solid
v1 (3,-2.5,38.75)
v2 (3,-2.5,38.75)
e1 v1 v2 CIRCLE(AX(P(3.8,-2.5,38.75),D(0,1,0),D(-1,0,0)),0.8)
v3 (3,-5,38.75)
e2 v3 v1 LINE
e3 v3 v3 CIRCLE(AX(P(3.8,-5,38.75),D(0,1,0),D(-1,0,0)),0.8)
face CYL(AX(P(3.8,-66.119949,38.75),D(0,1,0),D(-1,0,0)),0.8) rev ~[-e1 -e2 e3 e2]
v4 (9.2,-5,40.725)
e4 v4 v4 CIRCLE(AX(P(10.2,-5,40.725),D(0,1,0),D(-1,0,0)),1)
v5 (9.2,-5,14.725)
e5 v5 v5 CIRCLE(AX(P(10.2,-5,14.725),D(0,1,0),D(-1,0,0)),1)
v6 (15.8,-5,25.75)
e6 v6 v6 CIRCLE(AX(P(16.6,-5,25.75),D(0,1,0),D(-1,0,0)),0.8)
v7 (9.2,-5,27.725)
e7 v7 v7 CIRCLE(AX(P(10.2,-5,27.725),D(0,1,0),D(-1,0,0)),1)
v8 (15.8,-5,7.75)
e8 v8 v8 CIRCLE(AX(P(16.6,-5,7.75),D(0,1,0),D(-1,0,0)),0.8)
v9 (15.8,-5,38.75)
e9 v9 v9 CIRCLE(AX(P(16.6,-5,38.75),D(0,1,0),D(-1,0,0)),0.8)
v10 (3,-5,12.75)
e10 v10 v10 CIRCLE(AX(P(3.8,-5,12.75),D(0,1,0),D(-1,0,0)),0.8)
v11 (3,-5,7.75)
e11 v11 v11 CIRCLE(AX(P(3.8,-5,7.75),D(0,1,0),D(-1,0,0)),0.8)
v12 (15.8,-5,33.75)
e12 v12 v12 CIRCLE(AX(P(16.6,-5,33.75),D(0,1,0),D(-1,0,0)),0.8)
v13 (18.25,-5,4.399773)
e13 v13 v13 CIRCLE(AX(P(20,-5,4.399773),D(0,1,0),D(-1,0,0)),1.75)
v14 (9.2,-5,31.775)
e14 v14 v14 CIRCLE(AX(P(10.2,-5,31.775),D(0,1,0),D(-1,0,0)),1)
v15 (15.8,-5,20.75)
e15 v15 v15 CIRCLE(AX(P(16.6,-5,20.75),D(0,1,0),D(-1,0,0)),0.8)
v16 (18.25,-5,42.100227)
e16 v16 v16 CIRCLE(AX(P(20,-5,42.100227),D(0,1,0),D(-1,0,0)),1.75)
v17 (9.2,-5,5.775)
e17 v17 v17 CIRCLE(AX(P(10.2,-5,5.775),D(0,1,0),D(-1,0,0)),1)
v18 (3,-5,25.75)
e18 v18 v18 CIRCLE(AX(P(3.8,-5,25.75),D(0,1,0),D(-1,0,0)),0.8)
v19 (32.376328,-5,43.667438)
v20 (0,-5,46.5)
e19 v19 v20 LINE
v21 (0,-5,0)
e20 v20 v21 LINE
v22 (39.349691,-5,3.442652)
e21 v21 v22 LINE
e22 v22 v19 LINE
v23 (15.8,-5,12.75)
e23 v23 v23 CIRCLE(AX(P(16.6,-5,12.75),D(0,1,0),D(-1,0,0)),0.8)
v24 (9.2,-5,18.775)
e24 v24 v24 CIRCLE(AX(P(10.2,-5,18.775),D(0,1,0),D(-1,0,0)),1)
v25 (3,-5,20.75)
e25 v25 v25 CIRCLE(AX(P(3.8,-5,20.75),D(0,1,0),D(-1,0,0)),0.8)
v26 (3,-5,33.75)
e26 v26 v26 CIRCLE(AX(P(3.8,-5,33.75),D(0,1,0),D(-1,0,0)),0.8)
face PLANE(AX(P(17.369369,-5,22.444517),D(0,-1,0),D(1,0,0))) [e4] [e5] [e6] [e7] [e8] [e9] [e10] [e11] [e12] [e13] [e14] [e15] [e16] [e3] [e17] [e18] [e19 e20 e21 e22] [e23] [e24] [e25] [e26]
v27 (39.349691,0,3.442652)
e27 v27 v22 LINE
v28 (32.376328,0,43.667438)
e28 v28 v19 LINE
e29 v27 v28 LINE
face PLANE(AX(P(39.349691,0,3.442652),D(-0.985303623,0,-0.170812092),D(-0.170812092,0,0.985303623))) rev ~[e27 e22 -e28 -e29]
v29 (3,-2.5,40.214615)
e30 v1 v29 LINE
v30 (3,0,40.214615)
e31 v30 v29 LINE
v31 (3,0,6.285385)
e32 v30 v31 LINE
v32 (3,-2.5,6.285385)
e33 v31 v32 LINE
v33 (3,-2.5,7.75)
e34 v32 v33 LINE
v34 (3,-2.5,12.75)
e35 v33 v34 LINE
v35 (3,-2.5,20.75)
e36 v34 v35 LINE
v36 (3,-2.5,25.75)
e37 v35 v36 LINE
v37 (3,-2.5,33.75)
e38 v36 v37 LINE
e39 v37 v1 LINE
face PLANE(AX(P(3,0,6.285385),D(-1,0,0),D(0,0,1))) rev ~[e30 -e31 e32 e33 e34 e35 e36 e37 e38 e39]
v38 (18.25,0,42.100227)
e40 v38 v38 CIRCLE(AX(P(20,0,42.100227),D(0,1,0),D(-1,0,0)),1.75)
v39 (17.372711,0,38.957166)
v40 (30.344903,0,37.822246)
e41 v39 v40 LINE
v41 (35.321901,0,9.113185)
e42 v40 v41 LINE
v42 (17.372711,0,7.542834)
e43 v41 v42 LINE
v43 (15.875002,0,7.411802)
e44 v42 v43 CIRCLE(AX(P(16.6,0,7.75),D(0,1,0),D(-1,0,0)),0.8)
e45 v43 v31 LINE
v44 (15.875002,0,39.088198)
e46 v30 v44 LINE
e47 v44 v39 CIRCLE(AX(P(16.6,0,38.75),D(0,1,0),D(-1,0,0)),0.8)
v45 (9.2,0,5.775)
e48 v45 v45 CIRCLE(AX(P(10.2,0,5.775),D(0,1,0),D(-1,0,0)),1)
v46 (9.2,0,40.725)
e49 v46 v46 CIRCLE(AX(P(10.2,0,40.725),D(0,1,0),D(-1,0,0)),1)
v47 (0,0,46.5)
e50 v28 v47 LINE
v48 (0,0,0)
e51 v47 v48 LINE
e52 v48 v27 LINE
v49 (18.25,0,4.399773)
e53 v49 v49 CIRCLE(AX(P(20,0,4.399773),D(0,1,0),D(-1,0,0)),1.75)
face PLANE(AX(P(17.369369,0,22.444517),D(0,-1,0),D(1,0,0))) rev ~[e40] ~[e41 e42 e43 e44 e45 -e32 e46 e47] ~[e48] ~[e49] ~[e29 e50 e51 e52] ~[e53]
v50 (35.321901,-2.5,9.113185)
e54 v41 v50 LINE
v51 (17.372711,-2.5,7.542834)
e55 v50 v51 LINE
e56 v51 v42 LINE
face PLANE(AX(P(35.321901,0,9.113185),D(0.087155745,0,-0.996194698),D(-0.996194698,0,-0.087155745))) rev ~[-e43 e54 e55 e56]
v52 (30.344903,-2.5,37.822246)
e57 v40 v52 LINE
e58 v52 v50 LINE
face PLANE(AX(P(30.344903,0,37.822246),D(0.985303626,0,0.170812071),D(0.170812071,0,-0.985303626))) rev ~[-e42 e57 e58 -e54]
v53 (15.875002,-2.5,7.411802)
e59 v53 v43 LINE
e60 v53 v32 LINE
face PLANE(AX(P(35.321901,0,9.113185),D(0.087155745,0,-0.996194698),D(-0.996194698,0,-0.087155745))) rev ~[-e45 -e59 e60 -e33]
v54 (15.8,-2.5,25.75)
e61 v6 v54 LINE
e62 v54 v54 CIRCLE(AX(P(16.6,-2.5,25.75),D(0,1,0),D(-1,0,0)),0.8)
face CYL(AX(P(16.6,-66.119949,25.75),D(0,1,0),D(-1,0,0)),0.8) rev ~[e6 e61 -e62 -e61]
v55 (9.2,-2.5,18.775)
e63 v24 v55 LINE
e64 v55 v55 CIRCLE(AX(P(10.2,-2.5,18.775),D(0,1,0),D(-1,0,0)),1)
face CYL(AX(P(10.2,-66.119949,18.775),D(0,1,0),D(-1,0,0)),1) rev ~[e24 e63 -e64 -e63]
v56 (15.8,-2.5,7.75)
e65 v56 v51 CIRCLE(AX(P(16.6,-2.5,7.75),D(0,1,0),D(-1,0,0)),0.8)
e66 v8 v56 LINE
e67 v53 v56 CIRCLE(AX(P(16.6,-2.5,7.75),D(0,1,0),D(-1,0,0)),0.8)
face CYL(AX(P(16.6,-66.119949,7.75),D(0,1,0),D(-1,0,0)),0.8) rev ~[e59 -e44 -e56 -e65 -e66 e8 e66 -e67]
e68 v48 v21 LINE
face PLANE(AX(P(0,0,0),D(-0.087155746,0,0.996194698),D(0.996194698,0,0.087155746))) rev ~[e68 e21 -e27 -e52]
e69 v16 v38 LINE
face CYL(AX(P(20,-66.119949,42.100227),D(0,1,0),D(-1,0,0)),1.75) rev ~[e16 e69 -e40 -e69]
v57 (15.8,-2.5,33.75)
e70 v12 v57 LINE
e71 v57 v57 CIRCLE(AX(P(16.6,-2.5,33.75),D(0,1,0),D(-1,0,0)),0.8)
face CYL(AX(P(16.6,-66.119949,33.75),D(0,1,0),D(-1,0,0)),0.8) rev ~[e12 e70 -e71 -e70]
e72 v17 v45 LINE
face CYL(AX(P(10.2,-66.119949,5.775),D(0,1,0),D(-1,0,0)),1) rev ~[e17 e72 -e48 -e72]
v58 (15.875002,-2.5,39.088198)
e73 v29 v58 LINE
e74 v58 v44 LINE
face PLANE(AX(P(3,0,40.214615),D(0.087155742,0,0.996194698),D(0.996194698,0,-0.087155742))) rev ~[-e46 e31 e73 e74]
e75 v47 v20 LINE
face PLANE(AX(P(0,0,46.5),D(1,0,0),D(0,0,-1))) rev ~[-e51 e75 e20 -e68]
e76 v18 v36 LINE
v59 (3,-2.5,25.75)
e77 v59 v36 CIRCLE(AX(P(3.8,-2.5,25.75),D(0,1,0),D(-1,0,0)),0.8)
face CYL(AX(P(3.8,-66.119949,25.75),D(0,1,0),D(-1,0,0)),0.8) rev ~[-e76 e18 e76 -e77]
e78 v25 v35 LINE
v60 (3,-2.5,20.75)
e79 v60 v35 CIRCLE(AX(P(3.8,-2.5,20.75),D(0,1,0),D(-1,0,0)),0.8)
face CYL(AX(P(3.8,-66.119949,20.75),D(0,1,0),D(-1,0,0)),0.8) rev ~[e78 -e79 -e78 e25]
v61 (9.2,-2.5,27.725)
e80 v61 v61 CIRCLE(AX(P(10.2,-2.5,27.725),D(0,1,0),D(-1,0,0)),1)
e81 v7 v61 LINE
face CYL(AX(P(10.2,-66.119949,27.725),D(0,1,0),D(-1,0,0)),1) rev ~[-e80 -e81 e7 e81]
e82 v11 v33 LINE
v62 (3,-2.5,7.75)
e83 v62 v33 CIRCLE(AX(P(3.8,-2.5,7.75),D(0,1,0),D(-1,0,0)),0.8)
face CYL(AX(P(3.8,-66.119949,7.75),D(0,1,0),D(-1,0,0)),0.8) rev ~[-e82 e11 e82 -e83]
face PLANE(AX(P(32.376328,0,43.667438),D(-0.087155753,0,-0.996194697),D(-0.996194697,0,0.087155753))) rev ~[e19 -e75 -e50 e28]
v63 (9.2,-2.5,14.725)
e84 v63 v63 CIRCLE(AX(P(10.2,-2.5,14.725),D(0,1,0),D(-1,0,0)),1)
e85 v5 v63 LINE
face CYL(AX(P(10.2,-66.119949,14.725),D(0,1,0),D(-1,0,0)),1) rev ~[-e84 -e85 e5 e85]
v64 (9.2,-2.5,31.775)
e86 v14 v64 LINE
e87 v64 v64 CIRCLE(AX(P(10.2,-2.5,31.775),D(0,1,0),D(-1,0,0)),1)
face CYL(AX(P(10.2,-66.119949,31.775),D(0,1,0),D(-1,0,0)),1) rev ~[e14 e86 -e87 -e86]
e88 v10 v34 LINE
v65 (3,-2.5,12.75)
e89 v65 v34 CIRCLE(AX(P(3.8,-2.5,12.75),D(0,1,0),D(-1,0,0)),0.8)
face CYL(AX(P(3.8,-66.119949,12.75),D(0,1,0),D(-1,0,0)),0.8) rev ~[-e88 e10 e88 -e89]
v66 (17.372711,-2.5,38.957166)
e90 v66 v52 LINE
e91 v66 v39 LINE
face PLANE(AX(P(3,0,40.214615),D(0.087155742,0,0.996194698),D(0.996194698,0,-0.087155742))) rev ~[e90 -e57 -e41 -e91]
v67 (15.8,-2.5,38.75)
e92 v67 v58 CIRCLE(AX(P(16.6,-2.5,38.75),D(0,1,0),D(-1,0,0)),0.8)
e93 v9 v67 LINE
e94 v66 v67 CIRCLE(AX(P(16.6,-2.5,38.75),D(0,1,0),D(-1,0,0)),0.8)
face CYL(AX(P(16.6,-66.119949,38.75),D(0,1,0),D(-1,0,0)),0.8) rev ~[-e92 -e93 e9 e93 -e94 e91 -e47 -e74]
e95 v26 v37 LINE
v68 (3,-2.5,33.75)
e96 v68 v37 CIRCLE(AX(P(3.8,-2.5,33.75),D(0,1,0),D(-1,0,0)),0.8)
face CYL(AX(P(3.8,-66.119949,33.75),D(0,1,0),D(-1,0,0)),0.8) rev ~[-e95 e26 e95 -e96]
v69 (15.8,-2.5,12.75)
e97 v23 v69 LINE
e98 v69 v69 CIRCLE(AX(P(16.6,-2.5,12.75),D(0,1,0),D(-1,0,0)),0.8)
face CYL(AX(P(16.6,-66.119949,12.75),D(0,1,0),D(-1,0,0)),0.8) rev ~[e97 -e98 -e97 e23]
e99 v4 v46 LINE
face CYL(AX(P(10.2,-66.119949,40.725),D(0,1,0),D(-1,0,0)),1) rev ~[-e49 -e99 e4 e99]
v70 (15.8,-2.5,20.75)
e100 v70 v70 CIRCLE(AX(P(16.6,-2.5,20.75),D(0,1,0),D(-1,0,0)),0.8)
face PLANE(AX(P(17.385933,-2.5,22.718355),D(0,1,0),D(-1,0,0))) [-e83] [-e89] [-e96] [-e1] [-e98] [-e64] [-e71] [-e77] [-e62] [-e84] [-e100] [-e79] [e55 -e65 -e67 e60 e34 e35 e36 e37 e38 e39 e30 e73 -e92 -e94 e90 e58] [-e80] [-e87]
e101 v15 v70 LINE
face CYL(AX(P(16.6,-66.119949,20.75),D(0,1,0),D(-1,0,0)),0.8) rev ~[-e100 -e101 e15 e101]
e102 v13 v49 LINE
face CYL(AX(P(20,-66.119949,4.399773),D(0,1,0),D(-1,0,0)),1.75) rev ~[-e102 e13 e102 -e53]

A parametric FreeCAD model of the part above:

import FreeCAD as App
import Part
import Sketcher
Q = App.Units.Quantity

doc = App.newDocument("Part")
params = doc.addObject("Spreadsheet::Sheet", "Params")
for row, (alias, value) in enumerate([
    ("sketch1_height", "46.5 mm"),
    ("sketch1_length", "32.5 mm"),
    ("sketch1_length2", "39.5 mm"),
    ("pad1_length", "5 mm"),
    ("pocket1_length", "2.5 mm"),
    ("sketch3_diameter", "3.5 mm"),
    ("hole_diameter", "3.5 mm"),
    ("sketch4_diameter", "1.6 mm"),
    ("hole2_diameter", "1.6 mm"),
    ("sketch5_diameter", "2 mm"),
    ("hole3_diameter", "2 mm"),
], start=1):
    params.set(f"A{row}", alias)
    params.set(f"B{row}", "=" + value)
    params.setAlias(f"B{row}", alias)

body = doc.addObject("PartDesign::Body", "Body")

# Sketch on XZ plane
sketch1 = body.newObject("Sketcher::SketchObject", "Sketch")
sketch1.AttachmentSupport = (doc.getObject("XZ_Plane"), [""])
sketch1.MapMode = "FlatFace"
sketch1.addGeometry(Part.LineSegment(App.Vector(32, 44, 0), App.Vector(0, 46, 0)), False)
sketch1.addGeometry(Part.LineSegment(App.Vector(0, 46, 0), App.Vector(0, 0, 0)), False)
sketch1.addGeometry(Part.LineSegment(App.Vector(0, 0, 0), App.Vector(39, 3, 0)), False)
sketch1.addGeometry(Part.LineSegment(App.Vector(39, 3, 0), App.Vector(32, 44, 0)), False)
sketch1.addConstraint(Sketcher.Constraint("Coincident", 0, 2, 1, 1))
sketch1.addConstraint(Sketcher.Constraint("Coincident", 1, 2, 2, 1))
sketch1.addConstraint(Sketcher.Constraint("Coincident", 2, 2, 3, 1))
sketch1.addConstraint(Sketcher.Constraint("Coincident", 3, 2, 0, 1))
sketch1.addConstraint(Sketcher.Constraint("Vertical", 1))
sketch1.addConstraint(Sketcher.Constraint("Coincident", 1, 2, -1, 1))
sketch1.addConstraint(Sketcher.Constraint("Angle", 0, Q("174.999999 deg")))
sketch1.addConstraint(Sketcher.Constraint("Angle", 2, Q("5 deg")))
sketch1.addConstraint(Sketcher.Constraint("DistanceY", 1, 2, 1, 1, 46.5))
sketch1.addConstraint(Sketcher.Constraint("Distance", 0, 32.5))
sketch1.addConstraint(Sketcher.Constraint("Distance", 2, 39.5))
sketch1.setExpression("Constraints[8]", "Params.sketch1_height")
sketch1.setExpression("Constraints[9]", "Params.sketch1_length")
sketch1.setExpression("Constraints[10]", "Params.sketch1_length2")
pad1 = body.newObject("PartDesign::Pad", "Pad")
pad1.Profile = sketch1
pad1.setExpression("Length", "Params.pad1_length")

# Sketch on XZ plane
sketch2 = body.newObject("Sketcher::SketchObject", "Sketch001")
sketch2.AttachmentSupport = (doc.getObject("XZ_Plane"), [""])
sketch2.MapMode = "FlatFace"
sketch2.addGeometry(Part.LineSegment(App.Vector(3, 40, 0), App.Vector(30, 38, 0)), False)
sketch2.addGeometry(Part.LineSegment(App.Vector(30, 38, 0), App.Vector(35, 9, 0)), False)
sketch2.addGeometry(Part.LineSegment(App.Vector(35, 9, 0), App.Vector(3, 6, 0)), False)
sketch2.addGeometry(Part.LineSegment(App.Vector(3, 6, 0), App.Vector(3, 40, 0)), False)
sketch2.addConstraint(Sketcher.Constraint("Coincident", 0, 2, 1, 1))
sketch2.addConstraint(Sketcher.Constraint("Coincident", 1, 2, 2, 1))
sketch2.addConstraint(Sketcher.Constraint("Coincident", 2, 2, 3, 1))
sketch2.addConstraint(Sketcher.Constraint("Coincident", 3, 2, 0, 1))
sketch2.addConstraint(Sketcher.Constraint("Vertical", 3))
sketch2.addConstraint(Sketcher.Constraint("Angle", 0, Q("-5 deg")))
sketch2.addConstraint(Sketcher.Constraint("Angle", 2, Q("-175 deg")))
sketch2.addConstraint(Sketcher.Constraint("DistanceX", -1, 1, 2, 2, 3.0))
sketch2.addConstraint(Sketcher.Constraint("DistanceY", 3, 1, 3, 2, 33.92923))
sketch2.addConstraint(Sketcher.Constraint("DistanceX", -1, 1, 1, 2, 35.321901))
sketch2.addConstraint(Sketcher.Constraint("DistanceY", 1, 2, 0, 2, 28.709061))
sketch2.addConstraint(Sketcher.Constraint("DistanceY", -1, 1, 0, 2, 37.822246))
pocket1 = body.newObject("PartDesign::Pocket", "Pocket")
pocket1.Profile = sketch2
pocket1.setExpression("Length", "Params.pocket1_length")
pocket1.Reversed = True

# Sketch on XZ plane
sketch3 = body.newObject("Sketcher::SketchObject", "Sketch002")
sketch3.AttachmentSupport = (doc.getObject("XZ_Plane"), [""])
sketch3.MapMode = "FlatFace"
sketch3.AttachmentOffset = App.Placement(App.Vector(0, 0, 5), App.Rotation())
sketch3.addGeometry(Part.Circle(App.Vector(20, 4.4, 0), App.Vector(0, 0, 1), 1.8), False)
sketch3.addGeometry(Part.Circle(App.Vector(20, 42.1, 0), App.Vector(0, 0, 1), 1.8), False)
sketch3.addConstraint(Sketcher.Constraint("Equal", 0, 1))
sketch3.addConstraint(Sketcher.Constraint("Vertical", 0, 3, 1, 3))
sketch3.addConstraint(Sketcher.Constraint("Diameter", 0, 3.5))
sketch3.addConstraint(Sketcher.Constraint("DistanceX", -1, 1, 0, 3, 20.0))
sketch3.addConstraint(Sketcher.Constraint("DistanceY", -1, 1, 0, 3, 4.399773))
sketch3.addConstraint(Sketcher.Constraint("DistanceY", -1, 1, 1, 3, 42.100227))
sketch3.setExpression("Constraints[2]", "Params.sketch3_diameter")
doc.recompute()
hole = body.newObject("PartDesign::Hole", "Hole")
hole.Profile = sketch3
hole.ThreadType = "None"
hole.setExpression("Diameter", "Params.hole_diameter")
hole.DepthType = "ThroughAll"

# Sketch on XZ plane
sketch4 = body.newObject("Sketcher::SketchObject", "Sketch003")
sketch4.AttachmentSupport = (doc.getObject("XZ_Plane"), [""])
sketch4.MapMode = "FlatFace"
sketch4.AttachmentOffset = App.Placement(App.Vector(0, 0, 5), App.Rotation())
sketch4.addGeometry(Part.Circle(App.Vector(3.8, 7.8, 0), App.Vector(0, 0, 1), 0.8), False)
sketch4.addGeometry(Part.Circle(App.Vector(3.8, 12.8, 0), App.Vector(0, 0, 1), 0.8), False)
sketch4.addGeometry(Part.Circle(App.Vector(3.8, 20.8, 0), App.Vector(0, 0, 1), 0.8), False)
sketch4.addGeometry(Part.Circle(App.Vector(3.8, 25.8, 0), App.Vector(0, 0, 1), 0.8), False)
sketch4.addGeometry(Part.Circle(App.Vector(3.8, 33.8, 0), App.Vector(0, 0, 1), 0.8), False)
sketch4.addGeometry(Part.Circle(App.Vector(3.8, 38.8, 0), App.Vector(0, 0, 1), 0.8), False)
sketch4.addGeometry(Part.Circle(App.Vector(16.6, 38.8, 0), App.Vector(0, 0, 1), 0.8), False)
sketch4.addGeometry(Part.Circle(App.Vector(16.6, 33.8, 0), App.Vector(0, 0, 1), 0.8), False)
sketch4.addGeometry(Part.Circle(App.Vector(16.6, 25.8, 0), App.Vector(0, 0, 1), 0.8), False)
sketch4.addGeometry(Part.Circle(App.Vector(16.6, 20.8, 0), App.Vector(0, 0, 1), 0.8), False)
sketch4.addGeometry(Part.Circle(App.Vector(16.6, 12.8, 0), App.Vector(0, 0, 1), 0.8), False)
sketch4.addGeometry(Part.Circle(App.Vector(16.6, 7.8, 0), App.Vector(0, 0, 1), 0.8), False)
sketch4.addConstraint(Sketcher.Constraint("Equal", 0, 1))
sketch4.addConstraint(Sketcher.Constraint("Equal", 1, 2))
sketch4.addConstraint(Sketcher.Constraint("Equal", 2, 3))
sketch4.addConstraint(Sketcher.Constraint("Equal", 3, 4))
sketch4.addConstraint(Sketcher.Constraint("Equal", 4, 5))
sketch4.addConstraint(Sketcher.Constraint("Equal", 5, 6))
sketch4.addConstraint(Sketcher.Constraint("Equal", 6, 7))
sketch4.addConstraint(Sketcher.Constraint("Equal", 7, 8))
sketch4.addConstraint(Sketcher.Constraint("Equal", 8, 9))
sketch4.addConstraint(Sketcher.Constraint("Equal", 9, 10))
sketch4.addConstraint(Sketcher.Constraint("Equal", 10, 11))
sketch4.addConstraint(Sketcher.Constraint("Horizontal", 5, 3, 6, 3))
sketch4.addConstraint(Sketcher.Constraint("Horizontal", 4, 3, 7, 3))
sketch4.addConstraint(Sketcher.Constraint("Horizontal", 3, 3, 8, 3))
sketch4.addConstraint(Sketcher.Constraint("Horizontal", 2, 3, 9, 3))
sketch4.addConstraint(Sketcher.Constraint("Horizontal", 1, 3, 10, 3))
sketch4.addConstraint(Sketcher.Constraint("Horizontal", 0, 3, 11, 3))
sketch4.addConstraint(Sketcher.Constraint("Vertical", 0, 3, 1, 3))
sketch4.addConstraint(Sketcher.Constraint("Vertical", 1, 3, 2, 3))
sketch4.addConstraint(Sketcher.Constraint("Vertical", 2, 3, 3, 3))
sketch4.addConstraint(Sketcher.Constraint("Vertical", 3, 3, 4, 3))
sketch4.addConstraint(Sketcher.Constraint("Vertical", 4, 3, 5, 3))
sketch4.addConstraint(Sketcher.Constraint("Vertical", 6, 3, 7, 3))
sketch4.addConstraint(Sketcher.Constraint("Vertical", 7, 3, 8, 3))
sketch4.addConstraint(Sketcher.Constraint("Vertical", 8, 3, 9, 3))
sketch4.addConstraint(Sketcher.Constraint("Vertical", 9, 3, 10, 3))
sketch4.addConstraint(Sketcher.Constraint("Vertical", 10, 3, 11, 3))
sketch4.addConstraint(Sketcher.Constraint("Diameter", 0, 1.6))
sketch4.addConstraint(Sketcher.Constraint("DistanceY", 0, 3, 1, 3, 5.0))
sketch4.addConstraint(Sketcher.Constraint("DistanceY", 1, 3, 2, 3, 8.0))
sketch4.addConstraint(Sketcher.Constraint("DistanceY", 2, 3, 3, 3, 5.0))
sketch4.addConstraint(Sketcher.Constraint("DistanceY", 3, 3, 4, 3, 8.0))
sketch4.addConstraint(Sketcher.Constraint("DistanceY", 4, 3, 5, 3, 5.0))
sketch4.addConstraint(Sketcher.Constraint("DistanceX", -1, 1, 0, 3, 3.8))
sketch4.addConstraint(Sketcher.Constraint("DistanceX", -1, 1, 6, 3, 16.6))
sketch4.addConstraint(Sketcher.Constraint("DistanceY", -1, 1, 0, 3, 7.75))
sketch4.setExpression("Constraints[27]", "Params.sketch4_diameter")
doc.recompute()
hole2 = body.newObject("PartDesign::Hole", "Hole001")
hole2.Profile = sketch4
hole2.ThreadType = "None"
hole2.setExpression("Diameter", "Params.hole2_diameter")
hole2.DepthType = "ThroughAll"

# Sketch on XZ plane
sketch5 = body.newObject("Sketcher::SketchObject", "Sketch004")
sketch5.AttachmentSupport = (doc.getObject("XZ_Plane"), [""])
sketch5.MapMode = "FlatFace"
sketch5.AttachmentOffset = App.Placement(App.Vector(0, 0, 5), App.Rotation())
sketch5.addGeometry(Part.Circle(App.Vector(10.2, 5.8, 0), App.Vector(0, 0, 1), 1), False)
sketch5.addGeometry(Part.Circle(App.Vector(10.2, 14.7, 0), App.Vector(0, 0, 1), 1), False)
sketch5.addGeometry(Part.Circle(App.Vector(10.2, 18.8, 0), App.Vector(0, 0, 1), 1), False)
sketch5.addGeometry(Part.Circle(App.Vector(10.2, 27.7, 0), App.Vector(0, 0, 1), 1), False)
sketch5.addGeometry(Part.Circle(App.Vector(10.2, 31.8, 0), App.Vector(0, 0, 1), 1), False)
sketch5.addGeometry(Part.Circle(App.Vector(10.2, 40.7, 0), App.Vector(0, 0, 1), 1), False)
sketch5.addConstraint(Sketcher.Constraint("Equal", 0, 1))
sketch5.addConstraint(Sketcher.Constraint("Equal", 1, 2))
sketch5.addConstraint(Sketcher.Constraint("Equal", 2, 3))
sketch5.addConstraint(Sketcher.Constraint("Equal", 3, 4))
sketch5.addConstraint(Sketcher.Constraint("Equal", 4, 5))
sketch5.addConstraint(Sketcher.Constraint("Vertical", 0, 3, 1, 3))
sketch5.addConstraint(Sketcher.Constraint("Vertical", 1, 3, 2, 3))
sketch5.addConstraint(Sketcher.Constraint("Vertical", 2, 3, 3, 3))
sketch5.addConstraint(Sketcher.Constraint("Vertical", 3, 3, 4, 3))
sketch5.addConstraint(Sketcher.Constraint("Vertical", 4, 3, 5, 3))
sketch5.addConstraint(Sketcher.Constraint("Diameter", 0, 2.0))
sketch5.addConstraint(Sketcher.Constraint("DistanceY", 0, 3, 2, 3, 13.0))
sketch5.addConstraint(Sketcher.Constraint("DistanceY", 1, 3, 3, 3, 13.0))
sketch5.addConstraint(Sketcher.Constraint("DistanceY", 2, 3, 4, 3, 13.0))
sketch5.addConstraint(Sketcher.Constraint("DistanceY", 3, 3, 5, 3, 13.0))
sketch5.addConstraint(Sketcher.Constraint("DistanceX", -1, 1, 0, 3, 10.2))
sketch5.addConstraint(Sketcher.Constraint("DistanceY", 0, 3, 1, 3, 8.95))
sketch5.addConstraint(Sketcher.Constraint("DistanceY", -1, 1, 0, 3, 5.775))
sketch5.setExpression("Constraints[10]", "Params.sketch5_diameter")
doc.recompute()
hole3 = body.newObject("PartDesign::Hole", "Hole002")
hole3.Profile = sketch5
hole3.ThreadType = "None"
hole3.setExpression("Diameter", "Params.hole3_diameter")
hole3.DepthType = "ThroughAll"

doc.recompute()
